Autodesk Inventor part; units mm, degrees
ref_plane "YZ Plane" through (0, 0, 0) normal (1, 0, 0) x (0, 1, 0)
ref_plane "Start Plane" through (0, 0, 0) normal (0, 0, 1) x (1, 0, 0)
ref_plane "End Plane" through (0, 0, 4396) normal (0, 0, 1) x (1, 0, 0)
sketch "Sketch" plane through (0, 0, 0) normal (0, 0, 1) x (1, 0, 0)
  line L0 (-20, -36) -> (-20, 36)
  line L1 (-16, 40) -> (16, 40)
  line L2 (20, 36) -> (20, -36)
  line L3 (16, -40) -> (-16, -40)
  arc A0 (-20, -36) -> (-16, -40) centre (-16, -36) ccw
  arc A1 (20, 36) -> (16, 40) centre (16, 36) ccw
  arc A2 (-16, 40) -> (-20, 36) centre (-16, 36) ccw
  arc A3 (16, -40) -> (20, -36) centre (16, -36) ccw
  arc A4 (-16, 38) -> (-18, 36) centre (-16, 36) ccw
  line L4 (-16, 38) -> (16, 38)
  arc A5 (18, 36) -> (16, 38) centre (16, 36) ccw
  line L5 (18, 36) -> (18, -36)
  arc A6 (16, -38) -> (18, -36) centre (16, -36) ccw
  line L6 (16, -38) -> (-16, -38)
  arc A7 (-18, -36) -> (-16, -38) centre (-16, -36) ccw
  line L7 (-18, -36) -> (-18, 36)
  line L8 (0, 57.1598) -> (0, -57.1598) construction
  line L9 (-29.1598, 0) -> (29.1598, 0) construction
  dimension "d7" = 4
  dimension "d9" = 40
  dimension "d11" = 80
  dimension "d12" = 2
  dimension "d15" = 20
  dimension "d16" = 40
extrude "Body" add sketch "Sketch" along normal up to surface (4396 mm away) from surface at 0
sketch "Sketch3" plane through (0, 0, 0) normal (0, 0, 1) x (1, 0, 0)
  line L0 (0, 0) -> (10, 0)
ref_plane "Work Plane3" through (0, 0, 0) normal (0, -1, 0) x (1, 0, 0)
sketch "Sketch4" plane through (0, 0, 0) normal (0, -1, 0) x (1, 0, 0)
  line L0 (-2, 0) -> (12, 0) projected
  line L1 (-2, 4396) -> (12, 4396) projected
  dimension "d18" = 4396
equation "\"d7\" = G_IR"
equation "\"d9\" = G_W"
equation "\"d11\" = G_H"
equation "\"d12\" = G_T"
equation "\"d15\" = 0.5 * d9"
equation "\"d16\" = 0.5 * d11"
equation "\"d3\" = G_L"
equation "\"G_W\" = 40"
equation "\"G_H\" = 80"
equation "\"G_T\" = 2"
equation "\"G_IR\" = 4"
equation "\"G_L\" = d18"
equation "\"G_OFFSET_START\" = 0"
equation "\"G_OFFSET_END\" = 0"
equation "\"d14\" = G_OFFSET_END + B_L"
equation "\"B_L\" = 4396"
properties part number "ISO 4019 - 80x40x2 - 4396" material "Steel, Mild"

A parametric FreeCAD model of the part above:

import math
import FreeCAD as App
import Part
import Sketcher

V = App.Vector

doc = App.newDocument("Part")
body = doc.addObject("PartDesign::Body", "Body")

# Sketch on XY plane
sketch1 = doc.addObject("Sketcher::SketchObject", "Sketch")
body.addObject(sketch1)
sketch1.AttachmentSupport = (doc.XY_Plane, [""])
sketch1.MapMode = "FlatFace"
sketch1.addGeometry([
    Part.LineSegment(V(-20, 36, 0), V(-20, -36, 0)),  # 0
    Part.ArcOfCircle(Part.Circle(V(-16, -36, 0), V(0, 0, 1), 4), math.radians(180), math.radians(270)),  # 1
    Part.LineSegment(V(-16, -40, 0), V(16, -40, 0)),  # 2
    Part.ArcOfCircle(Part.Circle(V(16, -36, 0), V(0, 0, 1), 4), math.radians(-90), math.radians(0)),  # 3
    Part.LineSegment(V(20, -36, 0), V(20, 36, 0)),  # 4
    Part.ArcOfCircle(Part.Circle(V(16, 36, 0), V(0, 0, 1), 4), math.radians(0), math.radians(90)),  # 5
    Part.LineSegment(V(16, 40, 0), V(-16, 40, 0)),  # 6
    Part.ArcOfCircle(Part.Circle(V(-16, 36, 0), V(0, 0, 1), 4), math.radians(90), math.radians(180)),  # 7
    Part.ArcOfCircle(Part.Circle(V(-16, 36, 0), V(0, 0, 1), 2), math.radians(90), math.radians(180)),  # 8
    Part.LineSegment(V(-16, 38, 0), V(16, 38, 0)),  # 9
    Part.ArcOfCircle(Part.Circle(V(16, 36, 0), V(0, 0, 1), 2), math.radians(0), math.radians(90)),  # 10
    Part.LineSegment(V(18, 36, 0), V(18, -36, 0)),  # 11
    Part.ArcOfCircle(Part.Circle(V(16, -36, 0), V(0, 0, 1), 2), math.radians(-90), math.radians(0)),  # 12
    Part.LineSegment(V(16, -38, 0), V(-16, -38, 0)),  # 13
    Part.ArcOfCircle(Part.Circle(V(-16, -36, 0), V(0, 0, 1), 2), math.radians(180), math.radians(270)),  # 14
    Part.LineSegment(V(-18, -36, 0), V(-18, 36, 0)),  # 15
], False)
sketch1.addConstraint([
    Sketcher.Constraint("Tangent", 0, 2, 1, 1),
    Sketcher.Constraint("Tangent", 1, 2, 2, 1),
    Sketcher.Constraint("Tangent", 2, 2, 3, 1),
    Sketcher.Constraint("Tangent", 3, 2, 4, 1),
    Sketcher.Constraint("Tangent", 4, 2, 5, 1),
    Sketcher.Constraint("Tangent", 5, 2, 6, 1),
    Sketcher.Constraint("Tangent", 6, 2, 7, 1),
    Sketcher.Constraint("Tangent", 7, 2, 0, 1),
    Sketcher.Constraint("Tangent", 8, 1, 9, 1),
    Sketcher.Constraint("Tangent", 9, 2, 10, 2),
    Sketcher.Constraint("Tangent", 10, 1, 11, 1),
    Sketcher.Constraint("Tangent", 11, 2, 12, 2),
    Sketcher.Constraint("Tangent", 12, 1, 13, 1),
    Sketcher.Constraint("Tangent", 13, 2, 14, 2),
    Sketcher.Constraint("Tangent", 14, 1, 15, 1),
    Sketcher.Constraint("Tangent", 15, 2, 8, 2),
    Sketcher.Constraint("Vertical", 0),
    Sketcher.Constraint("Horizontal", 2),
    Sketcher.Constraint("Vertical", 4),
    Sketcher.Constraint("Horizontal", 6),
    Sketcher.Constraint("Horizontal", 9),
    Sketcher.Constraint("Vertical", 11),
    Sketcher.Constraint("Horizontal", 13),
    Sketcher.Constraint("Vertical", 15),
    Sketcher.Constraint("Coincident", 8, 3, 7, 3),
    Sketcher.Constraint("Coincident", 10, 3, 5, 3),
    Sketcher.Constraint("Coincident", 12, 3, 3, 3),
    Sketcher.Constraint("Equal", 1, 3),
    Sketcher.Constraint("Equal", 3, 5),
    Sketcher.Constraint("Equal", 5, 7),
    Sketcher.Constraint("Equal", 12, 14),
    Sketcher.Constraint("Symmetric", 1, 3, 5, 3, -1, 1),
    Sketcher.Constraint("Radius", 1, 4.0),
    Sketcher.Constraint("Radius", 8, 2.0),
    Sketcher.Constraint("DistanceX", 0, 2, -1, 1, 20.0),
    Sketcher.Constraint("DistanceY", 1, 2, -1, 1, 40.0),
])
pad1 = doc.addObject("PartDesign::Pad", "Pad")
body.addObject(pad1)
pad1.Profile = sketch1
pad1.Length = 4396

doc.recompute()
